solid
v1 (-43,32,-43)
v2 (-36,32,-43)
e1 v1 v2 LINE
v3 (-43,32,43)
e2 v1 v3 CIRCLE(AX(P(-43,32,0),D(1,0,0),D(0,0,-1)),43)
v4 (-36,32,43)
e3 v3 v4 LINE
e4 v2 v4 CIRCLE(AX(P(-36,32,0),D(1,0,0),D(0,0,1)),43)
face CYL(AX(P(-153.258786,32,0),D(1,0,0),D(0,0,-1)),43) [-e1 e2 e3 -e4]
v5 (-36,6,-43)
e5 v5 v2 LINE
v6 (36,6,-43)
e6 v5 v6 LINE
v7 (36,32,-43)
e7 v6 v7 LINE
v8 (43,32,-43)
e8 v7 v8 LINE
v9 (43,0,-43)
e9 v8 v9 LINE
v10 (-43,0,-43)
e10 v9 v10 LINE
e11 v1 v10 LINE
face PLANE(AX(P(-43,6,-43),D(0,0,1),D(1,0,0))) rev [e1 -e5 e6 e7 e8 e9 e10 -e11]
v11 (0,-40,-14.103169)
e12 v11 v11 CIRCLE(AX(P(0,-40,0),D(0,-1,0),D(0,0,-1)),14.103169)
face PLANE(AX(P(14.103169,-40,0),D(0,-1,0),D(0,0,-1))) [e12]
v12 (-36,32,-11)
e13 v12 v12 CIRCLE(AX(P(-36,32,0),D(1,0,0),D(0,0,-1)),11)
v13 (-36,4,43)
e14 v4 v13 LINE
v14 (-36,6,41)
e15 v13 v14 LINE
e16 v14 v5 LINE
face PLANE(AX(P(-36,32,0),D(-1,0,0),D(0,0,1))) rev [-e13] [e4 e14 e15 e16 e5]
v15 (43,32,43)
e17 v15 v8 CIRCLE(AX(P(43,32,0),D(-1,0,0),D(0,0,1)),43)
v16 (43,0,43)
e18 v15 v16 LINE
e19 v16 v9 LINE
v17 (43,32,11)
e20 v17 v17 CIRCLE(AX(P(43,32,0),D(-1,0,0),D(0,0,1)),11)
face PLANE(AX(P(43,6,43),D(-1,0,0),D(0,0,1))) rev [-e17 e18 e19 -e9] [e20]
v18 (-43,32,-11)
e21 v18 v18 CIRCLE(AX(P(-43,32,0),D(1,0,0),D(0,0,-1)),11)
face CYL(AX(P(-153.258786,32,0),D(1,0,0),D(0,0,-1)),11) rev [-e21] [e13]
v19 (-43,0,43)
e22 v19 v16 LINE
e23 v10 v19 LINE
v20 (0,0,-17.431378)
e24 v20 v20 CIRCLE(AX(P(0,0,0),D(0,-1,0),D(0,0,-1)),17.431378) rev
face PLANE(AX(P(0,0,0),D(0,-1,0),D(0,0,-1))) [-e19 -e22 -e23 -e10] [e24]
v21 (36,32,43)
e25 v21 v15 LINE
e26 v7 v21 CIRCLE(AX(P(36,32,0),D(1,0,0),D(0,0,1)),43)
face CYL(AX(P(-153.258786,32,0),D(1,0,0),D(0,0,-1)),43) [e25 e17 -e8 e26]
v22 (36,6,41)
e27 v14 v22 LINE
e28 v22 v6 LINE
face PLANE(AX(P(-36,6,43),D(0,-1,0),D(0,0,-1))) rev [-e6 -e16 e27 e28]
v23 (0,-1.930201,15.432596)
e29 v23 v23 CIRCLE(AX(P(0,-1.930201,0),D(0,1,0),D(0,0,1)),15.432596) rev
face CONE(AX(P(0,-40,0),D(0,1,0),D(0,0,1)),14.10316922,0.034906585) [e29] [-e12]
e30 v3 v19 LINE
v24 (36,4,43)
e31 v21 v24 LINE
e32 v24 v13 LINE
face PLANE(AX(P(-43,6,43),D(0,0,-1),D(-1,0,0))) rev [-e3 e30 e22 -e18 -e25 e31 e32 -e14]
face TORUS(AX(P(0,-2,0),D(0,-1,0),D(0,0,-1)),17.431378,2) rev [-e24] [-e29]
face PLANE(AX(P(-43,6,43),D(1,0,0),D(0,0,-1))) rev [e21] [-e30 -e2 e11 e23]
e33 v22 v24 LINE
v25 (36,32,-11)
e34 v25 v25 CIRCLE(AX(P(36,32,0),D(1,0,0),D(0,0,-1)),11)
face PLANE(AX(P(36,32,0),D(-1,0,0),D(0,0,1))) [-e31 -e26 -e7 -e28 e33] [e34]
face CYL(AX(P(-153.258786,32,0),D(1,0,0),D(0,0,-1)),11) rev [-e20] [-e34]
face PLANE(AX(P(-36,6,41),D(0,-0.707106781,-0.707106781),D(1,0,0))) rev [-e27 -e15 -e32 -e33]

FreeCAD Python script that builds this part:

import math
import FreeCAD as App
import Part
import Sketcher
Q = App.Units.Quantity


def edges_at(feature, points):
    """Names of the edges that pass closest to the given points."""
    edges = feature.Shape.Edges
    near = lambda p: min(range(len(edges)), key=lambda i: edges[i].distToShape(Part.Vertex(*p))[0])
    return sorted({f"Edge{near(p) + 1}" for p in points})

doc = App.newDocument("Part")
params = doc.addObject("Spreadsheet::Sheet", "Params")
for row, (alias, value) in enumerate([
    ("sketch1_height", "40 mm"),
    ("sketch1_width", "15.5 mm"),
    ("revolution_angle", "360 deg"),
    ("sketch2_width", "86 mm"),
    ("pad1_length", "6 mm"),
    ("fillet_radius", "2 mm"),
    ("sketch3_diameter", "22 mm"),
    ("sketch3_radius", "43 mm"),
    ("sketch3_width", "26 mm"),
    ("pad2_length", "86 mm"),
    ("sketch4_diameter", "22 mm"),
    ("sketch4_radius", "43 mm"),
    ("sketch4_width", "26 mm"),
    ("pocket1_length", "72 mm"),
    ("chamfer_size", "2 mm"),
], start=1):
    params.set(f"A{row}", alias)
    params.set(f"B{row}", "=" + value)
    params.setAlias(f"B{row}", alias)

body = doc.addObject("PartDesign::Body", "Body")

# Sketch on XY plane
sketch1 = body.newObject("Sketcher::SketchObject", "Sketch")
sketch1.AttachmentSupport = (doc.getObject("XY_Plane"), [""])
sketch1.MapMode = "FlatFace"
sketch1.addGeometry(Part.LineSegment(App.Vector(16, 0, 0), App.Vector(0, 0, 0)), False)
sketch1.addGeometry(Part.LineSegment(App.Vector(0, 0, 0), App.Vector(0, -40, 0)), False)
sketch1.addGeometry(Part.LineSegment(App.Vector(0, -40, 0), App.Vector(14, -40, 0)), False)
sketch1.addGeometry(Part.LineSegment(App.Vector(14, -40, 0), App.Vector(16, 0, 0)), False)
sketch1.addConstraint(Sketcher.Constraint("Coincident", 0, 2, 1, 1))
sketch1.addConstraint(Sketcher.Constraint("Coincident", 1, 2, 2, 1))
sketch1.addConstraint(Sketcher.Constraint("Coincident", 2, 2, 3, 1))
sketch1.addConstraint(Sketcher.Constraint("Coincident", 3, 2, 0, 1))
sketch1.addConstraint(Sketcher.Constraint("Horizontal", 0))
sketch1.addConstraint(Sketcher.Constraint("Vertical", 1))
sketch1.addConstraint(Sketcher.Constraint("Horizontal", 2))
sketch1.addConstraint(Sketcher.Constraint("Coincident", 0, 2, -1, 1))
sketch1.addConstraint(Sketcher.Constraint("DistanceY", 1, 2, 1, 1, 40.0))
sketch1.addConstraint(Sketcher.Constraint("Angle", 3, Q("88 deg")))
sketch1.addConstraint(Sketcher.Constraint("DistanceX", 0, 2, 0, 1, 15.5))
sketch1.setExpression("Constraints[8]", "Params.sketch1_height")
sketch1.setExpression("Constraints[10]", "Params.sketch1_width")
revolution = body.newObject("PartDesign::Revolution", "Revolution")
revolution.Profile = sketch1
revolution.ReferenceAxis = (sketch1, ["V_Axis"])
revolution.setExpression("Angle", "Params.revolution_angle")

# Sketch on XZ plane
sketch2 = body.newObject("Sketcher::SketchObject", "Sketch001")
sketch2.AttachmentSupport = (doc.getObject("XZ_Plane"), [""])
sketch2.MapMode = "FlatFace"
sketch2.addGeometry(Part.LineSegment(App.Vector(-43, -43, 0), App.Vector(-43, 43, 0)), False)
sketch2.addGeometry(Part.LineSegment(App.Vector(-43, 43, 0), App.Vector(43, 43, 0)), False)
sketch2.addGeometry(Part.LineSegment(App.Vector(43, 43, 0), App.Vector(43, -43, 0)), False)
sketch2.addGeometry(Part.LineSegment(App.Vector(43, -43, 0), App.Vector(-43, -43, 0)), False)
sketch2.addConstraint(Sketcher.Constraint("Coincident", 0, 2, 1, 1))
sketch2.addConstraint(Sketcher.Constraint("Coincident", 1, 2, 2, 1))
sketch2.addConstraint(Sketcher.Constraint("Coincident", 2, 2, 3, 1))
sketch2.addConstraint(Sketcher.Constraint("Coincident", 3, 2, 0, 1))
sketch2.addConstraint(Sketcher.Constraint("Vertical", 0))
sketch2.addConstraint(Sketcher.Constraint("Horizontal", 1))
sketch2.addConstraint(Sketcher.Constraint("Vertical", 2))
sketch2.addConstraint(Sketcher.Constraint("Horizontal", 3))
sketch2.addConstraint(Sketcher.Constraint("Symmetric", 0, 2, 2, 2, -1, 1))
sketch2.addConstraint(Sketcher.Constraint("Equal", 3, 0))
sketch2.addConstraint(Sketcher.Constraint("DistanceX", 1, 1, 1, 2, 86.0))
sketch2.setExpression("Constraints[10]", "Params.sketch2_width")
pad1 = body.newObject("PartDesign::Pad", "Pad")
pad1.Profile = sketch2
pad1.setExpression("Length", "Params.pad1_length")
pad1.Reversed = True
doc.recompute()

fillet = body.newObject("PartDesign::Fillet", "Fillet")
fillet.Base = (pad1, edges_at(pad1, [(0, 0, 15.5)]))
fillet.setExpression("Radius", "Params.fillet_radius")

# Sketch on YZ plane
sketch3 = body.newObject("Sketcher::SketchObject", "Sketch002")
sketch3.AttachmentSupport = (doc.getObject("YZ_Plane"), [""])
sketch3.MapMode = "FlatFace"
sketch3.AttachmentOffset = App.Placement(App.Vector(0, 0, 43), App.Rotation())
sketch3.addGeometry(Part.LineSegment(App.Vector(6, 43, 0), App.Vector(6, -43, 0)), False)
sketch3.addGeometry(Part.LineSegment(App.Vector(6, -43, 0), App.Vector(32, -43, 0)), False)
sketch3.addGeometry(Part.ArcOfCircle(Part.Circle(App.Vector(32, 0, 0), App.Vector(0, 0, 1), 43), math.radians(-90), math.radians(90)), False)
sketch3.addGeometry(Part.LineSegment(App.Vector(32, 43, 0), App.Vector(6, 43, 0)), False)
sketch3.addGeometry(Part.Circle(App.Vector(32, 0, 0), App.Vector(0, 0, 1), 11), False)
sketch3.addConstraint(Sketcher.Constraint("Coincident", 0, 2, 1, 1))
sketch3.addConstraint(Sketcher.Constraint("Tangent", 1, 2, 2, 1))
sketch3.addConstraint(Sketcher.Constraint("Tangent", 2, 2, 3, 1))
sketch3.addConstraint(Sketcher.Constraint("Coincident", 3, 2, 0, 1))
sketch3.addConstraint(Sketcher.Constraint("Vertical", 0))
sketch3.addConstraint(Sketcher.Constraint("Horizontal", 1))
sketch3.addConstraint(Sketcher.Constraint("Horizontal", 3))
sketch3.addConstraint(Sketcher.Constraint("Coincident", 4, 3, 2, 3))
sketch3.addConstraint(Sketcher.Constraint("PointOnObject", 2, 3, -1))
sketch3.addConstraint(Sketcher.Constraint("Diameter", 4, 22.0))
sketch3.addConstraint(Sketcher.Constraint("Radius", 2, 43.0))
sketch3.addConstraint(Sketcher.Constraint("DistanceX", 1, 1, 1, 2, 26.0))
sketch3.addConstraint(Sketcher.Constraint("DistanceX", -1, 1, 2, 3, 32.0))
sketch3.setExpression("Constraints[9]", "Params.sketch3_diameter")
sketch3.setExpression("Constraints[10]", "Params.sketch3_radius")
sketch3.setExpression("Constraints[11]", "Params.sketch3_width")
pad2 = body.newObject("PartDesign::Pad", "Pad001")
pad2.Profile = sketch3
pad2.setExpression("Length", "Params.pad2_length")
pad2.Reversed = True

# Sketch on YZ plane
sketch4 = body.newObject("Sketcher::SketchObject", "Sketch003")
sketch4.AttachmentSupport = (doc.getObject("YZ_Plane"), [""])
sketch4.MapMode = "FlatFace"
sketch4.addGeometry(Part.LineSegment(App.Vector(6, 43, 0), App.Vector(6, -43, 0)), False)
sketch4.addGeometry(Part.LineSegment(App.Vector(6, -43, 0), App.Vector(32, -43, 0)), False)
sketch4.addGeometry(Part.ArcOfCircle(Part.Circle(App.Vector(32, 0, 0), App.Vector(0, 0, 1), 43), math.radians(-90), math.radians(90)), False)
sketch4.addGeometry(Part.LineSegment(App.Vector(32, 43, 0), App.Vector(6, 43, 0)), False)
sketch4.addGeometry(Part.Circle(App.Vector(32, 0, 0), App.Vector(0, 0, 1), 11), False)
sketch4.addConstraint(Sketcher.Constraint("Coincident", 0, 2, 1, 1))
sketch4.addConstraint(Sketcher.Constraint("Tangent", 1, 2, 2, 1))
sketch4.addConstraint(Sketcher.Constraint("Tangent", 2, 2, 3, 1))
sketch4.addConstraint(Sketcher.Constraint("Coincident", 3, 2, 0, 1))
sketch4.addConstraint(Sketcher.Constraint("Vertical", 0))
sketch4.addConstraint(Sketcher.Constraint("Horizontal", 1))
sketch4.addConstraint(Sketcher.Constraint("Horizontal", 3))
sketch4.addConstraint(Sketcher.Constraint("Coincident", 4, 3, 2, 3))
sketch4.addConstraint(Sketcher.Constraint("PointOnObject", 2, 3, -1))
sketch4.addConstraint(Sketcher.Constraint("Diameter", 4, 22.0))
sketch4.addConstraint(Sketcher.Constraint("Radius", 2, 43.0))
sketch4.addConstraint(Sketcher.Constraint("DistanceX", 1, 1, 1, 2, 26.0))
sketch4.addConstraint(Sketcher.Constraint("DistanceX", -1, 1, 2, 3, 32.0))
sketch4.setExpression("Constraints[9]", "Params.sketch4_diameter")
sketch4.setExpression("Constraints[10]", "Params.sketch4_radius")
sketch4.setExpression("Constraints[11]", "Params.sketch4_width")
pocket1 = body.newObject("PartDesign::Pocket", "Pocket")
pocket1.Profile = sketch4
pocket1.setExpression("Length", "Params.pocket1_length")
pocket1.Midplane = True
doc.recompute()

chamfer = body.newObject("PartDesign::Chamfer", "Chamfer")
chamfer.Base = (pocket1, edges_at(pocket1, [(0, 6, 43)]))
chamfer.setExpression("Size", "Params.chamfer_size")

doc.recompute()
